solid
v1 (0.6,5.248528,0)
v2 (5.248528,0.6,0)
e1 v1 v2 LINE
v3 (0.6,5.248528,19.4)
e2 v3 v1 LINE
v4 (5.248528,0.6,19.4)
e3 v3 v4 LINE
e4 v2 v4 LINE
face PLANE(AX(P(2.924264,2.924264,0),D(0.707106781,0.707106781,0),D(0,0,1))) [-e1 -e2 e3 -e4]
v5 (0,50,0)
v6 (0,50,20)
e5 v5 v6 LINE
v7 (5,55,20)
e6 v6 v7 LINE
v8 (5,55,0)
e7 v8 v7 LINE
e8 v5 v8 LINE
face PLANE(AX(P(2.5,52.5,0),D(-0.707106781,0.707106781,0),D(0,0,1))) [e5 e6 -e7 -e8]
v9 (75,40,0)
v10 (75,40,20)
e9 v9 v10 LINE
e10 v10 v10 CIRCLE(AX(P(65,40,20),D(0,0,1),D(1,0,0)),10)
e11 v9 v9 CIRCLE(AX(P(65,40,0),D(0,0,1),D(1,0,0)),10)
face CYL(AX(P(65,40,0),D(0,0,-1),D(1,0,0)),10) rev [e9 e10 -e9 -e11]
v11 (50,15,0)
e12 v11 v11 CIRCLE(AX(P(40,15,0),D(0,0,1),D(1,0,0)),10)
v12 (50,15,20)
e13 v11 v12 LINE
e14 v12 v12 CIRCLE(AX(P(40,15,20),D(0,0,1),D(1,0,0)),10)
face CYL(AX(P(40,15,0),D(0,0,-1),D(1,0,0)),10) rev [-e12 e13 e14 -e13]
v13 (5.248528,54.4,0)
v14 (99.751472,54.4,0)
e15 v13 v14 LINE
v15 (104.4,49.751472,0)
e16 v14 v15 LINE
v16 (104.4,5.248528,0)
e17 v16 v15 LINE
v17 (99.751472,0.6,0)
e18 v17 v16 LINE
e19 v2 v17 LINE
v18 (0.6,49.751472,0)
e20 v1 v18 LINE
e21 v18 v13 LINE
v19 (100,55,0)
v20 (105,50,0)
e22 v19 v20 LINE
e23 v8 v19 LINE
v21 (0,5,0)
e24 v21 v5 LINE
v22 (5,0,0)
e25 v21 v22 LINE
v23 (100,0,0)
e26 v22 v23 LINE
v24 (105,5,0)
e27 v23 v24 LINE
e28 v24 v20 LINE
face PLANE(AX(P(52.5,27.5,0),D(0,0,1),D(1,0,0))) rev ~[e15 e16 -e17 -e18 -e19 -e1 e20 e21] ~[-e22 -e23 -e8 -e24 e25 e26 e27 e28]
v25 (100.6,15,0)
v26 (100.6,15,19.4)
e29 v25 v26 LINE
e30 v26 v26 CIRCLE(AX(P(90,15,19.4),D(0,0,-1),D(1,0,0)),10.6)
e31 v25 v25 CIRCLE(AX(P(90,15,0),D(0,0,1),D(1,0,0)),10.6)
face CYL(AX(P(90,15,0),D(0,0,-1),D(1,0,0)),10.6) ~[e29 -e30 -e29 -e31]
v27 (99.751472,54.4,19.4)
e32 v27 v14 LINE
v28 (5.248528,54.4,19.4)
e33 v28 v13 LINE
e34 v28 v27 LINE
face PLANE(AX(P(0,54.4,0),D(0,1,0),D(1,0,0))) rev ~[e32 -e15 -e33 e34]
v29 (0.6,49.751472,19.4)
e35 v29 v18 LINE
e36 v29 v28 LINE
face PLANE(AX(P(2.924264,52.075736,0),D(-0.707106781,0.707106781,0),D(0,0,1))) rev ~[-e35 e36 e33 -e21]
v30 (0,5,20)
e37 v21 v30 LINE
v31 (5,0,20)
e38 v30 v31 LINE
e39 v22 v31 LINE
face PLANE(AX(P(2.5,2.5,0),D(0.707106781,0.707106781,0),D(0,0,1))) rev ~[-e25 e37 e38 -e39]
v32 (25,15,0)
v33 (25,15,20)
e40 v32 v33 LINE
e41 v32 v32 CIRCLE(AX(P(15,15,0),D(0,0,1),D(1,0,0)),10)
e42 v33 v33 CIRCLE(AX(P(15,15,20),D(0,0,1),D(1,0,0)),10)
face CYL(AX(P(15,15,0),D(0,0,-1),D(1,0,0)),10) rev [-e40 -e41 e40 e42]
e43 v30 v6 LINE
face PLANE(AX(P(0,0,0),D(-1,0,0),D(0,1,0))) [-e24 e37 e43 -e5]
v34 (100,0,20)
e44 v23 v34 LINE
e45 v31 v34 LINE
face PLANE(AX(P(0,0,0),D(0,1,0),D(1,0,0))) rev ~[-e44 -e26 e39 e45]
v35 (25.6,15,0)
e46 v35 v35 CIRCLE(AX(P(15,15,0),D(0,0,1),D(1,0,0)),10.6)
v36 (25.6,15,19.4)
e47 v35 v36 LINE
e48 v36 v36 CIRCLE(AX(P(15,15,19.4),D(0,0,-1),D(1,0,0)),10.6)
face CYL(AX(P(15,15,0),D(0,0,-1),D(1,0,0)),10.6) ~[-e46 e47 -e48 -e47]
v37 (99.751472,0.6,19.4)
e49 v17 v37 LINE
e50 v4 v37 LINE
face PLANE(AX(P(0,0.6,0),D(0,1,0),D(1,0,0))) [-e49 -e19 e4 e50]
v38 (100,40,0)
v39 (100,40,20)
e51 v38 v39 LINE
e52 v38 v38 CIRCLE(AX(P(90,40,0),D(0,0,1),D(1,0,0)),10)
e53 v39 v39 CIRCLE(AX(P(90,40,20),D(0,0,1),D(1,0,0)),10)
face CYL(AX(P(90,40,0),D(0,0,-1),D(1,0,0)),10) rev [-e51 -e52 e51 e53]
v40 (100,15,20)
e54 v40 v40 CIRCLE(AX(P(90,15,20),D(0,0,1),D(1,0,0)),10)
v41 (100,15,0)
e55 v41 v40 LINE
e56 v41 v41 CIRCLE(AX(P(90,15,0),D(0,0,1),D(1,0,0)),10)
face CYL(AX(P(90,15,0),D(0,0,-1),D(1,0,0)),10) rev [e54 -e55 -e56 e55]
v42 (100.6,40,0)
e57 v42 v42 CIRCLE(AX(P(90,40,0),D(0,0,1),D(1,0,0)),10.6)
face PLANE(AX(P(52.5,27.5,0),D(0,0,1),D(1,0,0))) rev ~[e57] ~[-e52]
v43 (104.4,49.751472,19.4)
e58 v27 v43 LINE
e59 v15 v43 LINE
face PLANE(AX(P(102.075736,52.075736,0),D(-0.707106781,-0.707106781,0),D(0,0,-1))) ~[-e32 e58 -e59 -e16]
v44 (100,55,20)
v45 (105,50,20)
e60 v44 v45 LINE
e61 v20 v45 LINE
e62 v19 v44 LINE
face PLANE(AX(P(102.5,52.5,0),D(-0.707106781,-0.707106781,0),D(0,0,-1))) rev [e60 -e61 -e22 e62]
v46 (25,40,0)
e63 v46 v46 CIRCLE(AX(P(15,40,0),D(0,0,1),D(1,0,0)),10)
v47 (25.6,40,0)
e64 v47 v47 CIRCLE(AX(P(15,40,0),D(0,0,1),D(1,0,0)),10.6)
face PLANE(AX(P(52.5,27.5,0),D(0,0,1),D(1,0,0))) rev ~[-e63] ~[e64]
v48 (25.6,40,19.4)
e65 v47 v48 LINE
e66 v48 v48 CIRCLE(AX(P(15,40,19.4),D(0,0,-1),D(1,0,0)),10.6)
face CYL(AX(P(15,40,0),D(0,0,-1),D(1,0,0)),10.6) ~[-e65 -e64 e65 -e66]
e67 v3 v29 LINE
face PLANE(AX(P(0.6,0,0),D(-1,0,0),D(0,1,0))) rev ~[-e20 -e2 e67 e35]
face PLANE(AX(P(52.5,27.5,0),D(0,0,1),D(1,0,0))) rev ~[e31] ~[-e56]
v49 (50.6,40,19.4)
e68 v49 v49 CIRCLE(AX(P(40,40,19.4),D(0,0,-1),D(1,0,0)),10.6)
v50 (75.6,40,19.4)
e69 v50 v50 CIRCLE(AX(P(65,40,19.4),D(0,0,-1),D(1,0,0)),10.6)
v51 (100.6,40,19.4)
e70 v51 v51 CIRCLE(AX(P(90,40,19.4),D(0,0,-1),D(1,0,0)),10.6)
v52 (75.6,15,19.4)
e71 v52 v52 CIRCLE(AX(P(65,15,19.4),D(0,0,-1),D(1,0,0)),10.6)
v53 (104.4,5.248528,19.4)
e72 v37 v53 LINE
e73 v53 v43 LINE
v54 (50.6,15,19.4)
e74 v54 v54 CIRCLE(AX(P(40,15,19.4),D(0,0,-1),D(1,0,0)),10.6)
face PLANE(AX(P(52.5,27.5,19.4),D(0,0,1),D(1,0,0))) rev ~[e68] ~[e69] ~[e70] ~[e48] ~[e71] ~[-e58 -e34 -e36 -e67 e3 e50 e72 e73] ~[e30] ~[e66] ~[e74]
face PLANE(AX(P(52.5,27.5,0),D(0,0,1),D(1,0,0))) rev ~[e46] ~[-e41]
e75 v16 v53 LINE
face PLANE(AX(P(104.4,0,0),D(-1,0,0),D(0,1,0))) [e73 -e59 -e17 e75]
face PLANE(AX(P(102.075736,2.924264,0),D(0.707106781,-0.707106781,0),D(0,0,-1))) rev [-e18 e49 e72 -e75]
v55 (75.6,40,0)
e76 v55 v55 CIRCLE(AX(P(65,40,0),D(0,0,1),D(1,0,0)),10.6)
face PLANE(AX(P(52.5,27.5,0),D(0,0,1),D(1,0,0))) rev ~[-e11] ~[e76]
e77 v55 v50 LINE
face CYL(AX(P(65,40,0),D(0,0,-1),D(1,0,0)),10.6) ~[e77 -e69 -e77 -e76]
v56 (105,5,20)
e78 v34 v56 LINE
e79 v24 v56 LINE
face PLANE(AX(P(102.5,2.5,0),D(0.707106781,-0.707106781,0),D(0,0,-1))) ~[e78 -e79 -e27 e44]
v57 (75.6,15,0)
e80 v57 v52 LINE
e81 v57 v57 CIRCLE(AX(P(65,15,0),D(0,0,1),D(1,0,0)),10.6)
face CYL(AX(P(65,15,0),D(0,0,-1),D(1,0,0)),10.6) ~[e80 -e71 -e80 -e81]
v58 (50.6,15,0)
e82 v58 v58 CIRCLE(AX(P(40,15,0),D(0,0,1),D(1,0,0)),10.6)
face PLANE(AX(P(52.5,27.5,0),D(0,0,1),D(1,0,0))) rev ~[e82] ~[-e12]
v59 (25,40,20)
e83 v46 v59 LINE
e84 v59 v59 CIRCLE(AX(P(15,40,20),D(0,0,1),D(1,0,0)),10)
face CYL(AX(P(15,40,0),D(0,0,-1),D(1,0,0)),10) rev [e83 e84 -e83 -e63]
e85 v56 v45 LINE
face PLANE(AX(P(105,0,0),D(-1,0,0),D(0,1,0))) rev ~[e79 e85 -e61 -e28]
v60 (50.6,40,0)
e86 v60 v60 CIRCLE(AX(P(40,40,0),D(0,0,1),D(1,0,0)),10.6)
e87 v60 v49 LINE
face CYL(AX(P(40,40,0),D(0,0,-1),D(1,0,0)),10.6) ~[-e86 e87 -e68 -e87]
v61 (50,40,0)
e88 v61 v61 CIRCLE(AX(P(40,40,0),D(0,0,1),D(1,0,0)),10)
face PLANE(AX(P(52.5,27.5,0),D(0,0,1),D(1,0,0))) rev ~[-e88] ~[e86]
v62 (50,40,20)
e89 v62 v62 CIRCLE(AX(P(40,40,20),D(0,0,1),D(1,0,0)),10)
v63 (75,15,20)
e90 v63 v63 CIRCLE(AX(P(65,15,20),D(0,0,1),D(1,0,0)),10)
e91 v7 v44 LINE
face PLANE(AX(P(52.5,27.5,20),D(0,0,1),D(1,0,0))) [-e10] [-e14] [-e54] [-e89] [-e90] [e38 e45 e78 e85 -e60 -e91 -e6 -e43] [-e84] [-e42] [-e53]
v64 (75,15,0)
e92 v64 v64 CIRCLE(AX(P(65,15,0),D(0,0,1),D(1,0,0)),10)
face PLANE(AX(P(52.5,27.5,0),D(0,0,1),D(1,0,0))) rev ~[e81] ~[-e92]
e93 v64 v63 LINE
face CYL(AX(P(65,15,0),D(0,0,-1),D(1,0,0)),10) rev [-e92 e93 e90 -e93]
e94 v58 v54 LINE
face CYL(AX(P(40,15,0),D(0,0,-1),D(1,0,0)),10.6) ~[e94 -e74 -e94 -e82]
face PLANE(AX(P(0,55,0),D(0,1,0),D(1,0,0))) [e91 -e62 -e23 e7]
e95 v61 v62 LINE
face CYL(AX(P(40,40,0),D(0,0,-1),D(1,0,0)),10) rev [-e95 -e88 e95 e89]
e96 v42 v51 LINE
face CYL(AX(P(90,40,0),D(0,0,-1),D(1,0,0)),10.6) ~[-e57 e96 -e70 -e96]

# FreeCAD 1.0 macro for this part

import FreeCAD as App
import Part
import Sketcher
Q = App.Units.Quantity


def edges_at(feature, points):
    """Names of the edges that pass closest to the given points."""
    edges = feature.Shape.Edges
    near = lambda p: min(range(len(edges)), key=lambda i: edges[i].distToShape(Part.Vertex(*p))[0])
    return sorted({f"Edge{near(p) + 1}" for p in points})


def faces_at(feature, points):
    """Names of the faces that lie closest to the given points."""
    faces = feature.Shape.Faces
    near = lambda p: min(range(len(faces)), key=lambda i: faces[i].distToShape(Part.Vertex(*p))[0])
    return sorted({f"Face{near(p) + 1}" for p in points})

doc = App.newDocument("Part")
body = doc.addObject("PartDesign::Body", "Body")

sketch1 = body.newObject("Sketcher::SketchObject", "Sketch")
sketch1.AttachmentSupport = (doc.getObject("XY_Plane"), [""])
sketch1.MapMode = "FlatFace"
sketch1.addGeometry([
    Part.LineSegment(App.Vector(0, 55, 0), App.Vector(0, 0, 0)),
    Part.LineSegment(App.Vector(0, 0, 0), App.Vector(105, 0, 0)),
    Part.LineSegment(App.Vector(105, 0, 0), App.Vector(105, 55, 0)),
    Part.LineSegment(App.Vector(105, 55, 0), App.Vector(0, 55, 0)),
    Part.Circle(App.Vector(15, 15, 0), App.Vector(0, 0, 1), 10),
    Part.Circle(App.Vector(40, 15, 0), App.Vector(0, 0, 1), 10),
    Part.Circle(App.Vector(65, 15, 0), App.Vector(0, 0, 1), 10),
    Part.Circle(App.Vector(90, 15, 0), App.Vector(0, 0, 1), 10),
    Part.Circle(App.Vector(15, 40, 0), App.Vector(0, 0, 1), 10),
    Part.Circle(App.Vector(40, 40, 0), App.Vector(0, 0, 1), 10),
    Part.Circle(App.Vector(65, 40, 0), App.Vector(0, 0, 1), 10),
    Part.Circle(App.Vector(90, 40, 0), App.Vector(0, 0, 1), 10),
], False)
sketch1.addConstraint([
    Sketcher.Constraint("Coincident", 0, 2, 1, 1),
    Sketcher.Constraint("Coincident", 1, 2, 2, 1),
    Sketcher.Constraint("Coincident", 2, 2, 3, 1),
    Sketcher.Constraint("Coincident", 3, 2, 0, 1),
    Sketcher.Constraint("Vertical", 0),
    Sketcher.Constraint("Horizontal", 1),
    Sketcher.Constraint("Vertical", 2),
    Sketcher.Constraint("Horizontal", 3),
    Sketcher.Constraint("Coincident", 0, 2, -1, 1),
    Sketcher.Constraint("Equal", 4, 5),
    Sketcher.Constraint("Equal", 5, 6),
    Sketcher.Constraint("Equal", 6, 7),
    Sketcher.Constraint("Equal", 7, 8),
    Sketcher.Constraint("Equal", 8, 9),
    Sketcher.Constraint("Equal", 9, 10),
    Sketcher.Constraint("Equal", 10, 11),
    Sketcher.Constraint("Horizontal", 4, 3, 5, 3),
    Sketcher.Constraint("Horizontal", 5, 3, 6, 3),
    Sketcher.Constraint("Horizontal", 6, 3, 7, 3),
    Sketcher.Constraint("Horizontal", 8, 3, 9, 3),
    Sketcher.Constraint("Horizontal", 9, 3, 10, 3),
    Sketcher.Constraint("Horizontal", 10, 3, 11, 3),
    Sketcher.Constraint("Vertical", 4, 3, 8, 3),
    Sketcher.Constraint("Vertical", 5, 3, 9, 3),
    Sketcher.Constraint("Vertical", 6, 3, 10, 3),
    Sketcher.Constraint("Vertical", 7, 3, 11, 3),
    Sketcher.Constraint("Diameter", 4, Q("20 mm")),
    Sketcher.Constraint("DistanceX", 1, 1, 1, 2, Q("105 mm")),
    Sketcher.Constraint("DistanceY", 0, 2, 0, 1, Q("55 mm")),
    Sketcher.Constraint("DistanceX", -1, 1, 4, 3, Q("15 mm")),
    Sketcher.Constraint("DistanceY", -1, 1, 4, 3, Q("15 mm")),
    Sketcher.Constraint("DistanceX", -1, 1, 5, 3, Q("40 mm")),
    Sketcher.Constraint("DistanceX", -1, 1, 6, 3, Q("65 mm")),
    Sketcher.Constraint("DistanceX", -1, 1, 7, 3, Q("90 mm")),
    Sketcher.Constraint("DistanceY", -1, 1, 8, 3, Q("40 mm")),
])
pad1 = body.newObject("PartDesign::Pad", "Pad")
pad1.Profile = sketch1
pad1.Length = 20
doc.recompute()

chamfer = body.newObject("PartDesign::Chamfer", "Chamfer")
chamfer.Base = (pad1, edges_at(pad1, [
    (0, 0, 10),
    (105, 0, 10),
    (105, 55, 10),
    (0, 55, 10),
]))
chamfer.Size = 5
doc.recompute()

thickness = body.newObject("PartDesign::Thickness", "Thickness")
thickness.Base = (chamfer, faces_at(chamfer, [(52.5, 27.5, 0)]))
thickness.Value = 0.6
thickness.Reversed = True
thickness.Join = "Arc"

doc.recompute()
